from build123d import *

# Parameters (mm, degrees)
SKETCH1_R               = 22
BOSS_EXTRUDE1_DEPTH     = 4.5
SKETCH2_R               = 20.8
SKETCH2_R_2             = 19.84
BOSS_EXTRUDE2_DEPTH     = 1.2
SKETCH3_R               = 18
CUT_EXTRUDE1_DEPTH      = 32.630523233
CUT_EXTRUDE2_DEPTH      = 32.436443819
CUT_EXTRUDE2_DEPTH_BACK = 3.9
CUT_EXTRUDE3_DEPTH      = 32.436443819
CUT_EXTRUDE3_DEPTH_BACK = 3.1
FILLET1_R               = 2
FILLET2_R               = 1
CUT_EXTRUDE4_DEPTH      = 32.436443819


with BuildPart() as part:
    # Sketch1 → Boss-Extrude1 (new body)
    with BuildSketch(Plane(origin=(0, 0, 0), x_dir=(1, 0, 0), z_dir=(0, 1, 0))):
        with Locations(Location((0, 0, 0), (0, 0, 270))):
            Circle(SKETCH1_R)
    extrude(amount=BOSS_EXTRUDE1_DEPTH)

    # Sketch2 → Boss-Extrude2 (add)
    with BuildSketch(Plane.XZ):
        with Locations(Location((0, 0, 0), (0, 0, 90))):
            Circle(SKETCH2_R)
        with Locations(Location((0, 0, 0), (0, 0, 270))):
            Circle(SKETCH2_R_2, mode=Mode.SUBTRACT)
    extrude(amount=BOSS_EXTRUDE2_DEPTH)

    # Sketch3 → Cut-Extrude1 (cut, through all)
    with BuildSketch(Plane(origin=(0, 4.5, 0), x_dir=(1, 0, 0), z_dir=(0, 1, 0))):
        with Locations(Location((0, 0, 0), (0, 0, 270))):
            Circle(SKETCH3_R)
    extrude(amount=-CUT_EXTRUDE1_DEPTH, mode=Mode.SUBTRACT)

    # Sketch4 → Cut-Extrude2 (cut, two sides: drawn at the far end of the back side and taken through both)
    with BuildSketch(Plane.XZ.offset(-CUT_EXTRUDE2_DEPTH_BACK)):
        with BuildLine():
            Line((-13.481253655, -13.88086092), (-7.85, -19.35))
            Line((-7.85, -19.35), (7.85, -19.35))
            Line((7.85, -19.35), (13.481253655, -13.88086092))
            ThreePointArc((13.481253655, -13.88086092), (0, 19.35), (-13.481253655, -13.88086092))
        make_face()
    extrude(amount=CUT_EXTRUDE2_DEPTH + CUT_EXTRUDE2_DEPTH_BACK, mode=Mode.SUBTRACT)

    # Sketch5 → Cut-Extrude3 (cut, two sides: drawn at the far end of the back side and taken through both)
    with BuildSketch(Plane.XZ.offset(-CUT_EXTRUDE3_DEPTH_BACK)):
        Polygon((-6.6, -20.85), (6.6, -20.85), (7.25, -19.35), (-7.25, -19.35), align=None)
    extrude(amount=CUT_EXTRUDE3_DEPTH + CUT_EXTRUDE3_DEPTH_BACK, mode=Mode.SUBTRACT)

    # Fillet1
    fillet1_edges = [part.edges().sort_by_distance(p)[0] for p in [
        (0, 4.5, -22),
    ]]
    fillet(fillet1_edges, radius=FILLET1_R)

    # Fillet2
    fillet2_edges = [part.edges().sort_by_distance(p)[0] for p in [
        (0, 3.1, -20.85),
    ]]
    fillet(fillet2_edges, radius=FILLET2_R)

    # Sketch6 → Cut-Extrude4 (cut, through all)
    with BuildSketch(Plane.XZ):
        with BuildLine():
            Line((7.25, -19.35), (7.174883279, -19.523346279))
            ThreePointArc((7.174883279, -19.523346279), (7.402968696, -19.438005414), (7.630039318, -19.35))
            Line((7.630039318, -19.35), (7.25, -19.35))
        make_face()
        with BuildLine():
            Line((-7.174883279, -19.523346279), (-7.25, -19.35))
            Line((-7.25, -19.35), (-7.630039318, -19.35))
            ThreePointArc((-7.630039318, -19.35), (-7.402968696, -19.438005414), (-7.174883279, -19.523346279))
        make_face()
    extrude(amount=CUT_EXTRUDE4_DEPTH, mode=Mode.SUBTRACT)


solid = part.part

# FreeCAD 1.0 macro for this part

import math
import FreeCAD as App
import Part
import Sketcher
from FreeCAD import Vector
Q = App.Units.Quantity


def edges_at(feature, points):
    """Names of the edges that pass closest to the given points."""
    edges = feature.Shape.Edges
    near = lambda p: min(range(len(edges)), key=lambda i: edges[i].distToShape(Part.Vertex(*p))[0])
    return sorted({f"Edge{near(p) + 1}" for p in points})

doc = App.newDocument("Part")
body = doc.addObject("PartDesign::Body", "Body")

# Sketch on XZ plane
sketch1 = body.newObject("Sketcher::SketchObject", "Sketch")
sketch1.AttachmentSupport = (doc.getObject("XZ_Plane"), [""])
sketch1.MapMode = "FlatFace"
sketch1.addGeometry(Part.Circle(Vector(0, 0, 0), Vector(0, 0, 1), 22), False)
sketch1.addConstraint(Sketcher.Constraint("Coincident", 0, 3, -1, 1))
sketch1.addConstraint(Sketcher.Constraint("Diameter", 0, Q("44 mm")))
pad1 = body.newObject("PartDesign::Pad", "Pad")
pad1.Profile = sketch1
pad1.Length = 4.5
pad1.Reversed = True

# Sketch on XZ plane
sketch2 = body.newObject("Sketcher::SketchObject", "Sketch001")
sketch2.AttachmentSupport = (doc.getObject("XZ_Plane"), [""])
sketch2.MapMode = "FlatFace"
sketch2.addGeometry(Part.Circle(Vector(0, 0, 0), Vector(0, 0, 1), 21), False)
sketch2.addGeometry(Part.Circle(Vector(0, 0, 0), Vector(0, 0, 1), 20), False)
sketch2.addConstraint(Sketcher.Constraint("Coincident", 0, 3, -1, 1))
sketch2.addConstraint(Sketcher.Constraint("Coincident", 1, 3, -1, 1))
sketch2.addConstraint(Sketcher.Constraint("Diameter", 0, Q("41.6 mm")))
sketch2.addConstraint(Sketcher.Constraint("Diameter", 1, Q("39.68 mm")))
pad2 = body.newObject("PartDesign::Pad", "Pad001")
pad2.Profile = sketch2
pad2.Length = 1.2

# Sketch on XZ plane
sketch3 = body.newObject("Sketcher::SketchObject", "Sketch002")
sketch3.AttachmentSupport = (doc.getObject("XZ_Plane"), [""])
sketch3.MapMode = "FlatFace"
sketch3.AttachmentOffset = App.Placement(Vector(0, 0, -4.5), App.Rotation())
sketch3.addGeometry(Part.Circle(Vector(0, 0, 0), Vector(0, 0, 1), 18), False)
sketch3.addConstraint(Sketcher.Constraint("Coincident", 0, 3, -1, 1))
sketch3.addConstraint(Sketcher.Constraint("Diameter", 0, Q("36 mm")))
pocket1 = body.newObject("PartDesign::Pocket", "Pocket")
pocket1.Profile = sketch3
pocket1.Type = "ThroughAll"
pocket1.Reversed = True

# Sketch on XZ plane
sketch4 = body.newObject("Sketcher::SketchObject", "Sketch003")
sketch4.AttachmentSupport = (doc.getObject("XZ_Plane"), [""])
sketch4.MapMode = "FlatFace"
sketch4.addGeometry(Part.LineSegment(Vector(-13, -14, 0), Vector(-8, -19, 0)), False)
sketch4.addGeometry(Part.LineSegment(Vector(-8, -19, 0), Vector(8, -19, 0)), False)
sketch4.addGeometry(Part.LineSegment(Vector(8, -19, 0), Vector(13, -14, 0)), False)
sketch4.addGeometry(Part.ArcOfCircle(Part.Circle(Vector(0, 0, 0), Vector(0, 0, 1), 19), math.radians(-46), math.radians(226)), False)
sketch4.addConstraint(Sketcher.Constraint("Coincident", 0, 2, 1, 1))
sketch4.addConstraint(Sketcher.Constraint("Coincident", 1, 2, 2, 1))
sketch4.addConstraint(Sketcher.Constraint("Tangent", 2, 2, 3, 1))
sketch4.addConstraint(Sketcher.Constraint("Tangent", 3, 2, 0, 1))
sketch4.addConstraint(Sketcher.Constraint("Horizontal", 1))
sketch4.addConstraint(Sketcher.Constraint("Coincident", 3, 3, -1, 1))
sketch4.addConstraint(Sketcher.Constraint("Horizontal", 2, 2, 3, 2))
sketch4.addConstraint(Sketcher.Constraint("Radius", 3, Q("19.35 mm")))
sketch4.addConstraint(Sketcher.Constraint("DistanceX", 1, 1, 1, 2, Q("15.7 mm")))
sketch4.addConstraint(Sketcher.Constraint("Distance", 0, Q("7.85 mm")))
pocket2 = body.newObject("PartDesign::Pocket", "Pocket001")
pocket2.Profile = sketch4
pocket2.Type = "TwoLengths"
pocket2.Length = 32.436444
pocket2.Length2 = 3.9
pocket2.Reversed = True

# Sketch on XZ plane
sketch5 = body.newObject("Sketcher::SketchObject", "Sketch004")
sketch5.AttachmentSupport = (doc.getObject("XZ_Plane"), [""])
sketch5.MapMode = "FlatFace"
sketch5.addGeometry(Part.LineSegment(Vector(-6.6, -20.9, 0), Vector(6.6, -20.9, 0)), False)
sketch5.addGeometry(Part.LineSegment(Vector(6.6, -20.9, 0), Vector(7.2, -19.4, 0)), False)
sketch5.addGeometry(Part.LineSegment(Vector(7.2, -19.4, 0), Vector(-7.2, -19.4, 0)), False)
sketch5.addGeometry(Part.LineSegment(Vector(-7.2, -19.4, 0), Vector(-6.6, -20.9, 0)), False)
sketch5.addConstraint(Sketcher.Constraint("Coincident", 0, 2, 1, 1))
sketch5.addConstraint(Sketcher.Constraint("Coincident", 1, 2, 2, 1))
sketch5.addConstraint(Sketcher.Constraint("Coincident", 2, 2, 3, 1))
sketch5.addConstraint(Sketcher.Constraint("Coincident", 3, 2, 0, 1))
sketch5.addConstraint(Sketcher.Constraint("Horizontal", 0))
sketch5.addConstraint(Sketcher.Constraint("Horizontal", 2))
sketch5.addConstraint(Sketcher.Constraint("Equal", 1, 3))
sketch5.addConstraint(Sketcher.Constraint("DistanceX", 0, 1, 0, 2, Q("13.2 mm")))
sketch5.addConstraint(Sketcher.Constraint("DistanceX", 2, 2, 2, 1, Q("14.5 mm")))
sketch5.addConstraint(Sketcher.Constraint("DistanceX", -1, 1, 0, 2, Q("6.6 mm")))
sketch5.addConstraint(Sketcher.Constraint("DistanceY", 0, 2, 1, 2, Q("1.5 mm")))
sketch5.addConstraint(Sketcher.Constraint("DistanceY", 0, 2, -1, 1, Q("20.85 mm")))
pocket3 = body.newObject("PartDesign::Pocket", "Pocket002")
pocket3.Profile = sketch5
pocket3.Type = "TwoLengths"
pocket3.Length = 32.436444
pocket3.Length2 = 3.1
pocket3.Reversed = True
doc.recompute()

fillet = body.newObject("PartDesign::Fillet", "Fillet")
fillet.Base = (pocket3, edges_at(pocket3, [(0, 4.5, -22)]))
fillet.Radius = 2
doc.recompute()

fillet2 = body.newObject("PartDesign::Fillet", "Fillet001")
fillet2.Base = (fillet, edges_at(fillet, [(0, 3.1, -20.85)]))
fillet2.Radius = 1

# Sketch on XZ plane
sketch6 = body.newObject("Sketcher::SketchObject", "Sketch005")
sketch6.AttachmentSupport = (doc.getObject("XZ_Plane"), [""])
sketch6.MapMode = "FlatFace"
sketch6.addGeometry(Part.LineSegment(Vector(7.25, -19.35, 0), Vector(7.17, -19.52, 0)), False)
sketch6.addGeometry(Part.ArcOfCircle(Part.Circle(Vector(0, 0, 0), Vector(0, 0, 1), 20.8), math.radians(-69.82), math.radians(-68.48)), False)
sketch6.addGeometry(Part.LineSegment(Vector(7.63, -19.35, 0), Vector(7.25, -19.35, 0)), False)
sketch6.addGeometry(Part.LineSegment(Vector(-7.17, -19.52, 0), Vector(-7.25, -19.35, 0)), False)
sketch6.addGeometry(Part.LineSegment(Vector(-7.25, -19.35, 0), Vector(-7.63, -19.35, 0)), False)
sketch6.addGeometry(Part.ArcOfCircle(Part.Circle(Vector(0, 0, 0), Vector(0, 0, 1), 20.8), math.radians(-111.52), math.radians(-110.18)), False)
sketch6.addConstraint(Sketcher.Constraint("Coincident", 0, 2, 1, 1))
sketch6.addConstraint(Sketcher.Constraint("Coincident", 1, 2, 2, 1))
sketch6.addConstraint(Sketcher.Constraint("Coincident", 2, 2, 0, 1))
sketch6.addConstraint(Sketcher.Constraint("Coincident", 3, 2, 4, 1))
sketch6.addConstraint(Sketcher.Constraint("Coincident", 4, 2, 5, 1))
sketch6.addConstraint(Sketcher.Constraint("Coincident", 5, 2, 3, 1))
sketch6.addConstraint(Sketcher.Constraint("Horizontal", 2))
sketch6.addConstraint(Sketcher.Constraint("Horizontal", 4))
sketch6.addConstraint(Sketcher.Constraint("Coincident", 1, 3, -1, 1))
sketch6.addConstraint(Sketcher.Constraint("Coincident", 5, 3, -1, 1))
sketch6.addConstraint(Sketcher.Constraint("Equal", 1, 5))
sketch6.addConstraint(Sketcher.Constraint("Symmetric", 2, 2, 3, 2, -2))
sketch6.addConstraint(Sketcher.Constraint("Horizontal", 0, 2, 5, 2))
sketch6.addConstraint(Sketcher.Constraint("DistanceX", 3, 2, 2, 2, Q("14.5 mm")))
sketch6.addConstraint(Sketcher.Constraint("DistanceY", 1, 2, -1, 1, Q("19.35 mm")))
sketch6.addConstraint(Sketcher.Constraint("Radius", 1, Q("20.800002 mm")))
sketch6.addConstraint(Sketcher.Constraint("Distance", 0, Q("0.188922 mm")))
pocket4 = body.newObject("PartDesign::Pocket", "Pocket003")
pocket4.Profile = sketch6
pocket4.Type = "ThroughAll"
pocket4.Reversed = True

doc.recompute()
